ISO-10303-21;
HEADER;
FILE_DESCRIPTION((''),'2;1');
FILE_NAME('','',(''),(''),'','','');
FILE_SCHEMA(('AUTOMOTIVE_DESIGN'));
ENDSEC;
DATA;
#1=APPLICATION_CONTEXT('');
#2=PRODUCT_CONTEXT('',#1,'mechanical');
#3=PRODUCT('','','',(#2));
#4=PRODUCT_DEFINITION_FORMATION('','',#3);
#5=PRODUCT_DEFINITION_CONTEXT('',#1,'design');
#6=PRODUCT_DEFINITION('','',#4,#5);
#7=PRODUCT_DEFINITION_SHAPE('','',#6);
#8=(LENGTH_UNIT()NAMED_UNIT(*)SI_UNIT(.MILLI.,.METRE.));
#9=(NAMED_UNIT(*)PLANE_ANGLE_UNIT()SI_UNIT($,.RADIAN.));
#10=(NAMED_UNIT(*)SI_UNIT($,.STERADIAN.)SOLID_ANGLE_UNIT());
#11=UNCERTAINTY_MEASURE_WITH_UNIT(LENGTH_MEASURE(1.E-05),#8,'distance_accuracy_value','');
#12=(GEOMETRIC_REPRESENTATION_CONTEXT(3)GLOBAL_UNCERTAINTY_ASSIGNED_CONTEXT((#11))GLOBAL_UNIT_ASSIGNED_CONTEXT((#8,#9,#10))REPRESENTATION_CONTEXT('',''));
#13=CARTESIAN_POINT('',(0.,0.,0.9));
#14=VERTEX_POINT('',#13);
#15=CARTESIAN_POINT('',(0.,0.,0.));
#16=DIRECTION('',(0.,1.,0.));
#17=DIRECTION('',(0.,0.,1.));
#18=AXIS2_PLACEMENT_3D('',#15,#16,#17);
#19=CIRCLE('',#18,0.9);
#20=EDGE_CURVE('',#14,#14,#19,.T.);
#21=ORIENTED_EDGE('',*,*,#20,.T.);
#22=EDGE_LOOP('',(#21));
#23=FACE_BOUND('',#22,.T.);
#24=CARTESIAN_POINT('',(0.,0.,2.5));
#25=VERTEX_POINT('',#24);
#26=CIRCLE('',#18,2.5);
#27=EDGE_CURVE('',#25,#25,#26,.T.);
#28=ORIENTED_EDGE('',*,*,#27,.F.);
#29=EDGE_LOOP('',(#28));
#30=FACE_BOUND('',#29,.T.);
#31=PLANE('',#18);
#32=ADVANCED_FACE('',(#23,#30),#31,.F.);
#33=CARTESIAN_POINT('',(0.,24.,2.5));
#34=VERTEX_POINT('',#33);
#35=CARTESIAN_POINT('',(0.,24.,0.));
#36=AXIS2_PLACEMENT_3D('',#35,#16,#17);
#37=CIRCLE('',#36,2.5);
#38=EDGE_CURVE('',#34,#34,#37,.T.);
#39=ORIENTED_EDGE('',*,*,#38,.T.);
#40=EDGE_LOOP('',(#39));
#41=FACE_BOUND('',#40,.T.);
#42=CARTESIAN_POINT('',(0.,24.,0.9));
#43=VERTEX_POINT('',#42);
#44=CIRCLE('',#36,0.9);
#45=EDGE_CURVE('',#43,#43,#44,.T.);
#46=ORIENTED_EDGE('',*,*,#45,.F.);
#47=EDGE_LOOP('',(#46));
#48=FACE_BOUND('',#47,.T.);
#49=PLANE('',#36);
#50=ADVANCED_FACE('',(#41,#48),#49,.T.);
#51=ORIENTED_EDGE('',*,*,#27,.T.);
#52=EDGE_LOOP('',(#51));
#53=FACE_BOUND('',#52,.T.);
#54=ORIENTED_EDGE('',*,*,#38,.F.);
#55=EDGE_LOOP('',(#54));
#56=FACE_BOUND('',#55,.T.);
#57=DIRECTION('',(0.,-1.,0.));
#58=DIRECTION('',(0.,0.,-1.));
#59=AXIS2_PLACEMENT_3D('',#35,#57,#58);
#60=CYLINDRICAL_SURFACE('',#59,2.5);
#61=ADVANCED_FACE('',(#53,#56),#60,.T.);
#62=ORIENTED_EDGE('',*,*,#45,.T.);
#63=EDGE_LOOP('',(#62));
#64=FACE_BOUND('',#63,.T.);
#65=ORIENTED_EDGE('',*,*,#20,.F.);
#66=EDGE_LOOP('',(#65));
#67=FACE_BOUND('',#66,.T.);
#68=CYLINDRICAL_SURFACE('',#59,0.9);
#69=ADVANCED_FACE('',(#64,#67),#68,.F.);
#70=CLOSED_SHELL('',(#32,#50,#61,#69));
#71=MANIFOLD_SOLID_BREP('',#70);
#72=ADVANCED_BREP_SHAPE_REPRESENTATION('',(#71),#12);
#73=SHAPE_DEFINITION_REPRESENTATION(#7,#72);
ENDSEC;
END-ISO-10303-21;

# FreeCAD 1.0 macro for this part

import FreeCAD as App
import Part
import Sketcher
from FreeCAD import Vector

doc = App.newDocument("Part")
body = doc.addObject("PartDesign::Body", "Body")

sketch1 = body.newObject("Sketcher::SketchObject", "Sketch")
sketch1.AttachmentSupport = (doc.getObject("XZ_Plane"), [""])
sketch1.MapMode = "FlatFace"
sketch1.addGeometry([
    Part.Circle(Vector(0, 0, 0), Vector(0, 0, 1), 2.5),
    Part.Circle(Vector(0, 0, 0), Vector(0, 0, 1), 0.9),
], False)
sketch1.addConstraint([
    Sketcher.Constraint("Coincident", 0, 3, -1, 1),
    Sketcher.Constraint("Coincident", 1, 3, -1, 1),
    Sketcher.Constraint("Diameter", 0, 5.0),
    Sketcher.Constraint("Diameter", 1, 1.8),
])
pad1 = body.newObject("PartDesign::Pad", "Pad")
pad1.Profile = sketch1
pad1.Length = 24
pad1.Reversed = True

doc.recompute()
